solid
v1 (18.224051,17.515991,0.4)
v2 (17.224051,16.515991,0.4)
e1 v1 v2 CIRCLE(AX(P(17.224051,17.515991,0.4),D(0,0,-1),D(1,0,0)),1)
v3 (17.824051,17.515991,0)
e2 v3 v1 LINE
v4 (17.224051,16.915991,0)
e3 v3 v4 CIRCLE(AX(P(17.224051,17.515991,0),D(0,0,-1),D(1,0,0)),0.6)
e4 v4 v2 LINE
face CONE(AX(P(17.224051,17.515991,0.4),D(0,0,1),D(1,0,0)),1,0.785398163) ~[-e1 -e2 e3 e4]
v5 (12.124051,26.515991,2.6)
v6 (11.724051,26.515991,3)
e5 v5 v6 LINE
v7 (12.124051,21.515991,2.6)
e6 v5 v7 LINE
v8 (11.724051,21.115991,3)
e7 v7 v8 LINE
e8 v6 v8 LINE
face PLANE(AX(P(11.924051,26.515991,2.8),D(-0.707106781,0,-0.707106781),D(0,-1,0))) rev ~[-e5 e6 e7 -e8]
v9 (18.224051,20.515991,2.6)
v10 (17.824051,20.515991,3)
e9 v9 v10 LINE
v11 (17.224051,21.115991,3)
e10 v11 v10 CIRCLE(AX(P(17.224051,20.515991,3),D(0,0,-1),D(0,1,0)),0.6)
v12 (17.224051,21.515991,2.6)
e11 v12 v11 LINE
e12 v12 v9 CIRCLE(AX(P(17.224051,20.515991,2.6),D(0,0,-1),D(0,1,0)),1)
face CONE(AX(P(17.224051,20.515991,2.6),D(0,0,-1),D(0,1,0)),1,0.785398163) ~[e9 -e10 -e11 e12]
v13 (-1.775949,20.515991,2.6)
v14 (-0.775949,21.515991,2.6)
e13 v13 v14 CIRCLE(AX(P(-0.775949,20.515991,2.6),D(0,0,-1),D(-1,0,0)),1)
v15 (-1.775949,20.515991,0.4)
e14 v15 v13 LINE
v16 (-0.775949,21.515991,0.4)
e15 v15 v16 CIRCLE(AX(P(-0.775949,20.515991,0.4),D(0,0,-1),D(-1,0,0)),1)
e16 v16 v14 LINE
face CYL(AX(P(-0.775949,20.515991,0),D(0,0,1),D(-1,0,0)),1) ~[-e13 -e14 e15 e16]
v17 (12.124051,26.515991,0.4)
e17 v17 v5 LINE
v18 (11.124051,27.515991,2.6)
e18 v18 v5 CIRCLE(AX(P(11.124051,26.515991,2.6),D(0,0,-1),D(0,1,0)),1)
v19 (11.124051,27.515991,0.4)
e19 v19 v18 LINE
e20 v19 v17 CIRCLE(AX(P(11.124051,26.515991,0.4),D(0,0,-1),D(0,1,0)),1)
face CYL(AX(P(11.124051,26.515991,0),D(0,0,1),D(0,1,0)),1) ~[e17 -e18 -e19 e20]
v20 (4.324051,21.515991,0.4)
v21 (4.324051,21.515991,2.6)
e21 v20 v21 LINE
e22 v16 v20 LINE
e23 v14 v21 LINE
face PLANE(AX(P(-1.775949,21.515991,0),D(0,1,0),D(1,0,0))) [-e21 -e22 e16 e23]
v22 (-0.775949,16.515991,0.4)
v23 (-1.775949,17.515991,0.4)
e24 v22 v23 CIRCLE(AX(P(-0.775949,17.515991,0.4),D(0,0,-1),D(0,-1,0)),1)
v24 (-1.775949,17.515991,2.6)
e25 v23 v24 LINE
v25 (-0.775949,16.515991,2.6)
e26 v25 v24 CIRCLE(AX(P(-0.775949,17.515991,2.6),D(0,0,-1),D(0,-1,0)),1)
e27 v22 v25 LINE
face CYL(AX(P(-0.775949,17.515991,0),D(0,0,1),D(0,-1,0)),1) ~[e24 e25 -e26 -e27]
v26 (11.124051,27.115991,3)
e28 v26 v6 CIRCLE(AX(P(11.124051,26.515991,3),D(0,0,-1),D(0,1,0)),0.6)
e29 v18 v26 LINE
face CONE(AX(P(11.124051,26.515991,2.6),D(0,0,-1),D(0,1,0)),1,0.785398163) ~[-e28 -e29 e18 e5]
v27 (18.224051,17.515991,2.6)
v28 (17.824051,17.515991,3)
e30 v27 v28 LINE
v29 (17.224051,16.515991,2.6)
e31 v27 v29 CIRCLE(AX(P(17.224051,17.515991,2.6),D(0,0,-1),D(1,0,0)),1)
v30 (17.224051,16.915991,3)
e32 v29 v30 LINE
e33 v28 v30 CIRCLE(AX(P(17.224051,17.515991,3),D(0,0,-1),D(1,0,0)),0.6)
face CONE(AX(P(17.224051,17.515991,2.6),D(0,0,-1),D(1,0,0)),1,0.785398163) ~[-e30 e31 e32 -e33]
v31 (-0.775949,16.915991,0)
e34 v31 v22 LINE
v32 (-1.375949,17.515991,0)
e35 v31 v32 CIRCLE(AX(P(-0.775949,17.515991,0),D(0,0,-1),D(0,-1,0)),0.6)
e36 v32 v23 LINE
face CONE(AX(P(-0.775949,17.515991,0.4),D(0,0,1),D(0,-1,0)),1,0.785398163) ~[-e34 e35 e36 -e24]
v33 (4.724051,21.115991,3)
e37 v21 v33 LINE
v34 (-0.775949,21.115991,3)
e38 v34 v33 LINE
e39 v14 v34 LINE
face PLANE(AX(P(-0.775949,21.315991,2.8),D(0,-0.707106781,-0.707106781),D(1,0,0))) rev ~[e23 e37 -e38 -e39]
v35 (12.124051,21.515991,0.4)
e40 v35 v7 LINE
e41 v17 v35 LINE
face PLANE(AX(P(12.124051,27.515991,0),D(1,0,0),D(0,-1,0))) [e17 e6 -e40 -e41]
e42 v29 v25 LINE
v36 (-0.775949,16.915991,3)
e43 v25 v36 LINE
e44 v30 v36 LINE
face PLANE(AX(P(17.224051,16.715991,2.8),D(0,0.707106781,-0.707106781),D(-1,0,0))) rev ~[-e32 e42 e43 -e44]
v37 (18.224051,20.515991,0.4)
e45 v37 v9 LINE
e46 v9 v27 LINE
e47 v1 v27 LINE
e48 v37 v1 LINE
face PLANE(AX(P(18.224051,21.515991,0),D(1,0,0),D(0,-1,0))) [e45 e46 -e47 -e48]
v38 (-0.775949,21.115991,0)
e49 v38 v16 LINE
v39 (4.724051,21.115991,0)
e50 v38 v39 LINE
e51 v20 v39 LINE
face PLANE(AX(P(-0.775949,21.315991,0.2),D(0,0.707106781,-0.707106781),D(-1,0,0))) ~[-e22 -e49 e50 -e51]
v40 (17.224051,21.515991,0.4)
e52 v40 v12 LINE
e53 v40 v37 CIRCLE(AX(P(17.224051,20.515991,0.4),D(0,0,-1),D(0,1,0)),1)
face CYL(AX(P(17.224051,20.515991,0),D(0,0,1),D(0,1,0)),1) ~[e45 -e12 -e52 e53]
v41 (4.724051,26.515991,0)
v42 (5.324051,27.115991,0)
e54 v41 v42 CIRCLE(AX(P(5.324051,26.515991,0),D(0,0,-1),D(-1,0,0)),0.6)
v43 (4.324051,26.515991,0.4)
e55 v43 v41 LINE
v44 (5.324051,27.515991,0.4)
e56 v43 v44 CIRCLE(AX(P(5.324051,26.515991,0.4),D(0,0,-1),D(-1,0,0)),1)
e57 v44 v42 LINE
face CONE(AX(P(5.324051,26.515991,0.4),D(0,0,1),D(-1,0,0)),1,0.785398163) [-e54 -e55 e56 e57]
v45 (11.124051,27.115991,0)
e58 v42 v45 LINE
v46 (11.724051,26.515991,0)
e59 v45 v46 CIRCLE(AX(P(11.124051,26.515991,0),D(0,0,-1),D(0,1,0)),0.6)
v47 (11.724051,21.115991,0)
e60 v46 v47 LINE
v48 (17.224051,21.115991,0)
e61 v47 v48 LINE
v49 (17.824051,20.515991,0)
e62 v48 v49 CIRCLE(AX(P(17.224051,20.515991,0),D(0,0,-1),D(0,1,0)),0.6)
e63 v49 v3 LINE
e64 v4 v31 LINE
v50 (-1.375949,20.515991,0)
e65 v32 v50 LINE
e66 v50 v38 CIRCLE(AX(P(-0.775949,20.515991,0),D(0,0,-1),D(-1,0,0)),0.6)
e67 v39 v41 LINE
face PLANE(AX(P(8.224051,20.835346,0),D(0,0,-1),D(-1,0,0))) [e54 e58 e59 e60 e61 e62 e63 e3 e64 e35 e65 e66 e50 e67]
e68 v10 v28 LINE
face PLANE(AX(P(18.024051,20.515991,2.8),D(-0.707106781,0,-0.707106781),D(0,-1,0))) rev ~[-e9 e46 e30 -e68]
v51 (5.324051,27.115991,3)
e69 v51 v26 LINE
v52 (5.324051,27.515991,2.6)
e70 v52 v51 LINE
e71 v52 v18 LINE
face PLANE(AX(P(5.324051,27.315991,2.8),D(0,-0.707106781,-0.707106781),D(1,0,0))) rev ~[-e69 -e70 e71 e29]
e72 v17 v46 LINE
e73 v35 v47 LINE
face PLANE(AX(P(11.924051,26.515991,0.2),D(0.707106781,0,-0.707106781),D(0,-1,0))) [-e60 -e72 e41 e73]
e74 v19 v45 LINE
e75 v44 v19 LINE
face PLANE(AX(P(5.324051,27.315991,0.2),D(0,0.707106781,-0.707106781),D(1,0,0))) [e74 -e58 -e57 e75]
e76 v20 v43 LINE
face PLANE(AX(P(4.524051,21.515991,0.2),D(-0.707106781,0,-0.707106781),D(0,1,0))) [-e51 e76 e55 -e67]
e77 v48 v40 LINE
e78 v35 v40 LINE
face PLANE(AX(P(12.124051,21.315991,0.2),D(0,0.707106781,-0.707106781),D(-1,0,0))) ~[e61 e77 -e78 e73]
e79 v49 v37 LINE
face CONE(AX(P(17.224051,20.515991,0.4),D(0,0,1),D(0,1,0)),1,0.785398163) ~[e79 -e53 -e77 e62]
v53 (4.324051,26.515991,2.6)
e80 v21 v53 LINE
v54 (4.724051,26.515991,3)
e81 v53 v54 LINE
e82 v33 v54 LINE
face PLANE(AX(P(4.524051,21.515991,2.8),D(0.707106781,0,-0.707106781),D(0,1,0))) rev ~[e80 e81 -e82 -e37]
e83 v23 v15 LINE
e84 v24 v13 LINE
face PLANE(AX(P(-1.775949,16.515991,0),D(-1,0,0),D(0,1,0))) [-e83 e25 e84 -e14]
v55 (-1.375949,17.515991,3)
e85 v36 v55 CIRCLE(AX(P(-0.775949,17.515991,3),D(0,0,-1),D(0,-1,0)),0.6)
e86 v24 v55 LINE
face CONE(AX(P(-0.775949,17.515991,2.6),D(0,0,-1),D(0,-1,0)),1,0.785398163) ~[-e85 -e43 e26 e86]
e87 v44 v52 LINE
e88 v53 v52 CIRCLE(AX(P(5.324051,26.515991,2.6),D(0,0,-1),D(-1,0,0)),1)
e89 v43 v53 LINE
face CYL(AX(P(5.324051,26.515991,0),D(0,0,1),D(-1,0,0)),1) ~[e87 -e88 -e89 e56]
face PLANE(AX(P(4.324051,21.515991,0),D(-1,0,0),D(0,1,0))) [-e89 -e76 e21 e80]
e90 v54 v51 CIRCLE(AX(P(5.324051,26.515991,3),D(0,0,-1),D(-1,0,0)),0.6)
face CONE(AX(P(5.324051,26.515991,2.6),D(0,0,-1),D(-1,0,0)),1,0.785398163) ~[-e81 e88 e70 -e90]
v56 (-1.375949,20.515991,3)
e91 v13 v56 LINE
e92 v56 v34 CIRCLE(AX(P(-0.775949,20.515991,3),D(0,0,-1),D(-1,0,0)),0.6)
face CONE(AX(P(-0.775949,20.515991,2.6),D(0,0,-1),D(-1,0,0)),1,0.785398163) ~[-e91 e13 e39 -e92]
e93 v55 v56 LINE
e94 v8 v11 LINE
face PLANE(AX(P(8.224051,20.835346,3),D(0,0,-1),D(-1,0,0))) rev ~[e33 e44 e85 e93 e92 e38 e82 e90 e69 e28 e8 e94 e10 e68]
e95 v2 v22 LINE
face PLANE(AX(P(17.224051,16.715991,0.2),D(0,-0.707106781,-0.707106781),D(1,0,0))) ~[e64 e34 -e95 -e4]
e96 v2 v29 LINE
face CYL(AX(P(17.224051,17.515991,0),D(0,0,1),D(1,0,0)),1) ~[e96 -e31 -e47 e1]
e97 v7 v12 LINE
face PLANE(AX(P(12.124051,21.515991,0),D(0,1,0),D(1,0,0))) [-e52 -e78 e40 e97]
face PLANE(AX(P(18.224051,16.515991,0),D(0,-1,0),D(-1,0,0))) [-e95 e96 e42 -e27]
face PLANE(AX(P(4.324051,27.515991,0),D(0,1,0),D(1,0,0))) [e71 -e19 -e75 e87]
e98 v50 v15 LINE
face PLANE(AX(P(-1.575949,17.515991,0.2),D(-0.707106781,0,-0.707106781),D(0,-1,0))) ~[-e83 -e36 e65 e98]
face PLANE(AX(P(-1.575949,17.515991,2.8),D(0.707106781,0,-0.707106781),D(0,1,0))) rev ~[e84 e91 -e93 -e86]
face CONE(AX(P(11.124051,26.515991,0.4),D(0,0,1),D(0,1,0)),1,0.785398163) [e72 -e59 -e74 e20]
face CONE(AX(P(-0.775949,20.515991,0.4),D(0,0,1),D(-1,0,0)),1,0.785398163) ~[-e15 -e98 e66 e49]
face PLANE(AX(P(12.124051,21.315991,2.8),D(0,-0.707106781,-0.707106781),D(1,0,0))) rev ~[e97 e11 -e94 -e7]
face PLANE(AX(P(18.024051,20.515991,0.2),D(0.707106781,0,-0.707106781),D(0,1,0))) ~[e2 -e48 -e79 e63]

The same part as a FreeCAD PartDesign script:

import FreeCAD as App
import Part
import Sketcher


def edges_at(feature, points):
    """Names of the edges that pass closest to the given points."""
    edges = feature.Shape.Edges
    near = lambda p: min(range(len(edges)), key=lambda i: edges[i].distToShape(Part.Vertex(*p))[0])
    return sorted({f"Edge{near(p) + 1}" for p in points})


def add_polygon(sketch, points):
    """Adds a closed chain of lines whose ends are joined by coincident constraints."""
    first, n = sketch.GeometryCount, len(points)
    for a, b in zip(points, points[1:] + points[:1]):
        sketch.addGeometry(Part.LineSegment(App.Vector(*a, 0), App.Vector(*b, 0)), False)
    for i in range(n):
        sketch.addConstraint(Sketcher.Constraint("Coincident", first + i, 2, first + (i + 1) % n, 1))

doc = App.newDocument("Part")
body = doc.addObject("PartDesign::Body", "Body")

# Sketch on XY plane
sketch1 = doc.addObject("Sketcher::SketchObject", "Sketch")
body.addObject(sketch1)
sketch1.AttachmentSupport = (doc.XY_Plane, [""])
sketch1.MapMode = "FlatFace"
add_polygon(sketch1, [(4, 28), (4, 22), (-2, 22), (-2, 17), (18, 17), (18, 22), (12, 22), (12, 28)])  # lines 0-7
sketch1.addConstraint([
    Sketcher.Constraint("Vertical", 0),
    Sketcher.Constraint("Horizontal", 1),
    Sketcher.Constraint("Vertical", 2),
    Sketcher.Constraint("Horizontal", 3),
    Sketcher.Constraint("Vertical", 4),
    Sketcher.Constraint("Horizontal", 5),
    Sketcher.Constraint("Vertical", 6),
    Sketcher.Constraint("Horizontal", 7),
    Sketcher.Constraint("Horizontal", 1, 2, 4, 2),
    Sketcher.Constraint("Equal", 1, 5),
    Sketcher.Constraint("DistanceX", 3, 1, 3, 2, 20.0),
    Sketcher.Constraint("DistanceY", 0, 2, 0, 1, 6.0),
    Sketcher.Constraint("DistanceY", 2, 2, 2, 1, 5.0),
    Sketcher.Constraint("DistanceX", 1, 2, 1, 1, 6.1),
    Sketcher.Constraint("DistanceX", -1, 1, 0, 2, 4.324051),
    Sketcher.Constraint("DistanceY", -1, 1, 0, 2, 21.515991),
])
pad1 = doc.addObject("PartDesign::Pad", "Pad")
body.addObject(pad1)
pad1.Profile = sketch1
pad1.Length = 3
doc.recompute()

fillet = doc.addObject("PartDesign::Fillet", "Fillet")
body.addObject(fillet)
fillet.Base = (pad1, edges_at(pad1, [
    (18.224, 21.516, 1.5),
    (12.124, 27.516, 1.5),
    (4.324, 27.516, 1.5),
    (18.224, 16.516, 1.5),
    (-1.776, 21.516, 1.5),
    (-1.776, 16.516, 1.5),
]))
fillet.Radius = 1
doc.recompute()

chamfer = doc.addObject("PartDesign::Chamfer", "Chamfer")
body.addObject(chamfer)
chamfer.Base = (fillet, edges_at(fillet, [
    (4.324, 24.016, 3),
    (4.617, 27.223, 3),
    (1.774, 21.516, 3),
    (8.224, 27.516, 3),
    (-1.483, 21.223, 3),
    (11.831, 27.223, 3),
    (-1.776, 19.016, 3),
    (12.124, 24.016, 3),
    (-1.483, 16.809, 3),
    (14.674, 21.516, 3),
    (8.224, 16.516, 3),
    (17.931, 21.223, 3),
    (17.931, 16.809, 3),
    (18.224, 19.016, 3),
    (4.324, 24.016, 0),
    (4.617, 27.223, 0),
    (1.774, 21.516, 0),
    (8.224, 27.516, 0),
    (-1.483, 21.223, 0),
    (11.831, 27.223, 0),
    (-1.776, 19.016, 0),
    (12.124, 24.016, 0),
    (-1.483, 16.809, 0),
    (14.674, 21.516, 0),
    (8.224, 16.516, 0),
    (17.931, 21.223, 0),
    (17.931, 16.809, 0),
    (18.224, 19.016, 0),
]))
chamfer.Size = 0.4

doc.recompute()
